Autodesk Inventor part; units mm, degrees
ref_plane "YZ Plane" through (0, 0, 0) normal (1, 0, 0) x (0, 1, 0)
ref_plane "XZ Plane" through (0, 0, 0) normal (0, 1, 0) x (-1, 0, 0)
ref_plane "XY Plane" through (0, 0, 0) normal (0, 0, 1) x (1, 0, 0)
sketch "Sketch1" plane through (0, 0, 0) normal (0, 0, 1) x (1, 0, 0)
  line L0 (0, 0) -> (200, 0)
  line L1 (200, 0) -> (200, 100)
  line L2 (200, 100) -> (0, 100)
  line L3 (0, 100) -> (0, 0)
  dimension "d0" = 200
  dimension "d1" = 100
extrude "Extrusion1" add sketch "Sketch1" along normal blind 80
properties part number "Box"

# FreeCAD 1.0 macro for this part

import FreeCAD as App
import Part
import Sketcher
from FreeCAD import Vector
Q = App.Units.Quantity

doc = App.newDocument("Part")
body = doc.addObject("PartDesign::Body", "Body")

sketch1 = body.newObject("Sketcher::SketchObject", "Sketch")
sketch1.AttachmentSupport = (doc.getObject("XY_Plane"), [""])
sketch1.MapMode = "FlatFace"
sketch1.addGeometry(Part.LineSegment(Vector(0, 100, 0), Vector(0, 0, 0)), False)
sketch1.addGeometry(Part.LineSegment(Vector(0, 0, 0), Vector(200, 0, 0)), False)
sketch1.addGeometry(Part.LineSegment(Vector(200, 0, 0), Vector(200, 100, 0)), False)
sketch1.addGeometry(Part.LineSegment(Vector(200, 100, 0), Vector(0, 100, 0)), False)
sketch1.addConstraint(Sketcher.Constraint("Coincident", 0, 2, 1, 1))
sketch1.addConstraint(Sketcher.Constraint("Coincident", 1, 2, 2, 1))
sketch1.addConstraint(Sketcher.Constraint("Coincident", 2, 2, 3, 1))
sketch1.addConstraint(Sketcher.Constraint("Coincident", 3, 2, 0, 1))
sketch1.addConstraint(Sketcher.Constraint("Vertical", 0))
sketch1.addConstraint(Sketcher.Constraint("Horizontal", 1))
sketch1.addConstraint(Sketcher.Constraint("Vertical", 2))
sketch1.addConstraint(Sketcher.Constraint("Horizontal", 3))
sketch1.addConstraint(Sketcher.Constraint("Coincident", 0, 2, -1, 1))
sketch1.addConstraint(Sketcher.Constraint("DistanceX", 1, 1, 1, 2, Q("200 mm")))
sketch1.addConstraint(Sketcher.Constraint("DistanceY", 0, 2, 0, 1, Q("100 mm")))
pad1 = body.newObject("PartDesign::Pad", "Pad")
pad1.Profile = sketch1
pad1.Length = 80

doc.recompute()
